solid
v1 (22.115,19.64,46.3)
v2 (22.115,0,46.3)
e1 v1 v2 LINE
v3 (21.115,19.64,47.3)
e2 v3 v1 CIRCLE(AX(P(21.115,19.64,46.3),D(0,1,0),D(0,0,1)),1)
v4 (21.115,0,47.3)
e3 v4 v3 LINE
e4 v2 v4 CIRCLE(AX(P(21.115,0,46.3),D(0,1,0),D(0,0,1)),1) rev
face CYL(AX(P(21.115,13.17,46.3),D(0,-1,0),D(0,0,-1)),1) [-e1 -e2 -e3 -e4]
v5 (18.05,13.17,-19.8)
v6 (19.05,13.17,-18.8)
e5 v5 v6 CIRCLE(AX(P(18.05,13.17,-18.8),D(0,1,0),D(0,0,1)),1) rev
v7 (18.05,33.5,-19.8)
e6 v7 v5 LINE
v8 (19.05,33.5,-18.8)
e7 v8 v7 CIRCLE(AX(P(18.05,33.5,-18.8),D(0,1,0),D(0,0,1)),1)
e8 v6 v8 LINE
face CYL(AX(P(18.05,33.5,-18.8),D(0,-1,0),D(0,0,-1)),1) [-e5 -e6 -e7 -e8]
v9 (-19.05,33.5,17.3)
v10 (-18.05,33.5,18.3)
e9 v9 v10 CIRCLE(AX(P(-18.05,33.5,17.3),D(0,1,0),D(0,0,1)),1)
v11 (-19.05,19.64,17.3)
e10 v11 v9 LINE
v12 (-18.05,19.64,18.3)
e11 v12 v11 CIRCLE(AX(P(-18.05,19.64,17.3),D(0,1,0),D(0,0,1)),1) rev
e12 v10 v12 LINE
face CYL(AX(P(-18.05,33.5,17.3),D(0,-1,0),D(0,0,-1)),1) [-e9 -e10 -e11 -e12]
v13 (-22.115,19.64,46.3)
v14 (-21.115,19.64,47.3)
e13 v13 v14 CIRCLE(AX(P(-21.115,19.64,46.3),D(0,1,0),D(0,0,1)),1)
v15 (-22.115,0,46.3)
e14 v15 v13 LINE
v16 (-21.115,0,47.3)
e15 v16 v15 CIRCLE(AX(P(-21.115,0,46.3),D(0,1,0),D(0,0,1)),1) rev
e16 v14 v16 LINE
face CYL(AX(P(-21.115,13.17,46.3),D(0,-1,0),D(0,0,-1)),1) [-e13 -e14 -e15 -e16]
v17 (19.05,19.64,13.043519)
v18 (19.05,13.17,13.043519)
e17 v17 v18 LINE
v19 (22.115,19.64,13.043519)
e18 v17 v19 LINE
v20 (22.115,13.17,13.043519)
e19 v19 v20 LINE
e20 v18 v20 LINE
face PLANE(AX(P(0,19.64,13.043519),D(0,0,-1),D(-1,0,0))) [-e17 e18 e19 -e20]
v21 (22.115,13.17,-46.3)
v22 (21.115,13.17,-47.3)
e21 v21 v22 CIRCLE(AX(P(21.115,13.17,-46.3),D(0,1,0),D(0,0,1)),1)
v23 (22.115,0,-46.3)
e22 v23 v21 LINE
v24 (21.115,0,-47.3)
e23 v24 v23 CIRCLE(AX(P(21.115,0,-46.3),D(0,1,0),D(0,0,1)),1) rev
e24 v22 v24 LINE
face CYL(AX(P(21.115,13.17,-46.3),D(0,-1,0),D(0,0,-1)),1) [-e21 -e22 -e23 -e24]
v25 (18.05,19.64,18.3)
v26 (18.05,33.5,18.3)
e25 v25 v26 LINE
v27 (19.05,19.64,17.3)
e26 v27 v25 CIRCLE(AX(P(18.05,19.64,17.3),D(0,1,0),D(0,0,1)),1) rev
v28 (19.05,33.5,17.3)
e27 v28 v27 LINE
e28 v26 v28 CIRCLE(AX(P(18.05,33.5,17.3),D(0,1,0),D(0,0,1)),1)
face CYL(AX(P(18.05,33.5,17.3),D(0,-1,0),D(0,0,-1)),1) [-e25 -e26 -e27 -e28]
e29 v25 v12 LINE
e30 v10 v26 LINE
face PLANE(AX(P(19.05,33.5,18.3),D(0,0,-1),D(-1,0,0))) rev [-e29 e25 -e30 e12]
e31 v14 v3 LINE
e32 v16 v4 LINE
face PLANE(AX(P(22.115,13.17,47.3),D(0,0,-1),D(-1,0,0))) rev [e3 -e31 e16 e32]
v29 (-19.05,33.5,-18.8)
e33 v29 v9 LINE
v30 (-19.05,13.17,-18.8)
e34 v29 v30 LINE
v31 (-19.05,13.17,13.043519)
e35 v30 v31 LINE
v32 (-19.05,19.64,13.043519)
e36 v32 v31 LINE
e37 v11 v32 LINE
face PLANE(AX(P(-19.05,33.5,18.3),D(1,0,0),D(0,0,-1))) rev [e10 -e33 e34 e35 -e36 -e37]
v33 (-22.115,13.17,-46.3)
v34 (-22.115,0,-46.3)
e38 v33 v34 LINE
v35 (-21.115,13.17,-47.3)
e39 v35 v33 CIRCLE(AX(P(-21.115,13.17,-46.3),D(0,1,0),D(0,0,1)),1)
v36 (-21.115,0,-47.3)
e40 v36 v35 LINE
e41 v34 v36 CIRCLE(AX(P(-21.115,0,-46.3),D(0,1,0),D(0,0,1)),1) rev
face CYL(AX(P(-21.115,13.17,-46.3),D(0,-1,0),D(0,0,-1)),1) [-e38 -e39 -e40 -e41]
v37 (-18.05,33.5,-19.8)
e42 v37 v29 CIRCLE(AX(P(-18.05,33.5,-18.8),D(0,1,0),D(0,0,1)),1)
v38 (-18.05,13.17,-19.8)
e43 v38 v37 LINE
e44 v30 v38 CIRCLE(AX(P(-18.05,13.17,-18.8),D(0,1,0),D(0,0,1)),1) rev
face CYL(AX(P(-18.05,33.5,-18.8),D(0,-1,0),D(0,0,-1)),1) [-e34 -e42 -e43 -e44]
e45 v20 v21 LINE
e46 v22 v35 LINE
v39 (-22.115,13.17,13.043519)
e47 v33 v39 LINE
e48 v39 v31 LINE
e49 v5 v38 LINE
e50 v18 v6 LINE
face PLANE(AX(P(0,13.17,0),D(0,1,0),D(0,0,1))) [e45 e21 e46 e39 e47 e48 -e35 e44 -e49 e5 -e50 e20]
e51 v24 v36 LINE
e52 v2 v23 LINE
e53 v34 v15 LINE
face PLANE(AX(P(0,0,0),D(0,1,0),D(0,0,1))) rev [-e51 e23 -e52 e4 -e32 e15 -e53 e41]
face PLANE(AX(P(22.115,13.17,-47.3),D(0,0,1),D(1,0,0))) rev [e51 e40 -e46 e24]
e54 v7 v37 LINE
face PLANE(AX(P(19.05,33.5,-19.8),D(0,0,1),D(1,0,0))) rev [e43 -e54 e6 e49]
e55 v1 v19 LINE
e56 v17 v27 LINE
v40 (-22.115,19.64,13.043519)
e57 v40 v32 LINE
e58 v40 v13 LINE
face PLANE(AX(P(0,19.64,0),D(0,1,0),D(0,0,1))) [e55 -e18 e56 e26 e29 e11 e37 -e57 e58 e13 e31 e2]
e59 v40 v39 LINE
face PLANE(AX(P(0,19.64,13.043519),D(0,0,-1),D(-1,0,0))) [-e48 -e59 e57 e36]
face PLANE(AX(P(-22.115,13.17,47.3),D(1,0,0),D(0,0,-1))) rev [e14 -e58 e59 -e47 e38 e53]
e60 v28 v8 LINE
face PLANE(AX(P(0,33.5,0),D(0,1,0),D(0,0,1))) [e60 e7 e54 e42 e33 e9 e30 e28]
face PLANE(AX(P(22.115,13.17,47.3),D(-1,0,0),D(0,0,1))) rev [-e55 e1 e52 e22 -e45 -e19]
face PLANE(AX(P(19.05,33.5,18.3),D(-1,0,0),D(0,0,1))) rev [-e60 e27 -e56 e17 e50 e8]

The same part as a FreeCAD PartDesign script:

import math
import FreeCAD as App
import Part
import Sketcher
from FreeCAD import Vector


def edges_at(feature, points):
    """Names of the edges that pass closest to the given points."""
    edges = feature.Shape.Edges
    near = lambda p: min(range(len(edges)), key=lambda i: edges[i].distToShape(Part.Vertex(*p))[0])
    return sorted({f"Edge{near(p) + 1}" for p in points})

doc = App.newDocument("Part")
body = doc.addObject("PartDesign::Body", "Body")

sketch1 = doc.addObject("Sketcher::SketchObject", "Sketch")
body.addObject(sketch1)
sketch1.AttachmentSupport = (doc.XZ_Plane, [""])
sketch1.MapMode = "FlatFace"
sketch1.addGeometry(Part.LineSegment(Vector(-22, -47, 0), Vector(-22, 47, 0)), False)
sketch1.addGeometry(Part.LineSegment(Vector(-22, 47, 0), Vector(22, 47, 0)), False)
sketch1.addGeometry(Part.LineSegment(Vector(22, 47, 0), Vector(22, -47, 0)), False)
sketch1.addGeometry(Part.LineSegment(Vector(22, -47, 0), Vector(-22, -47, 0)), False)
sketch1.addConstraint(Sketcher.Constraint("Coincident", 0, 2, 1, 1))
sketch1.addConstraint(Sketcher.Constraint("Coincident", 1, 2, 2, 1))
sketch1.addConstraint(Sketcher.Constraint("Coincident", 2, 2, 3, 1))
sketch1.addConstraint(Sketcher.Constraint("Coincident", 3, 2, 0, 1))
sketch1.addConstraint(Sketcher.Constraint("Vertical", 0))
sketch1.addConstraint(Sketcher.Constraint("Horizontal", 1))
sketch1.addConstraint(Sketcher.Constraint("Vertical", 2))
sketch1.addConstraint(Sketcher.Constraint("Horizontal", 3))
sketch1.addConstraint(Sketcher.Constraint("Symmetric", 0, 2, 2, 2, -1, 1))
sketch1.addConstraint(Sketcher.Constraint("DistanceY", 0, 1, 0, 2, 94.6))
sketch1.addConstraint(Sketcher.Constraint("DistanceX", 1, 1, 1, 2, 44.23))
pad1 = doc.addObject("PartDesign::Pad", "Pad")
body.addObject(pad1)
pad1.Profile = sketch1
pad1.Length = 13.17
pad1.Reversed = True

sketch2 = doc.addObject("Sketcher::SketchObject", "Sketch001")
body.addObject(sketch2)
sketch2.AttachmentSupport = (doc.XZ_Plane, [""])
sketch2.MapMode = "FlatFace"
sketch2.AttachmentOffset = App.Placement(Vector(0, 0, -13.17), App.Rotation())
sketch2.addGeometry(Part.LineSegment(Vector(-19, -20, 0), Vector(-19, 18, 0)), False)
sketch2.addGeometry(Part.LineSegment(Vector(-19, 18, 0), Vector(19, 18, 0)), False)
sketch2.addGeometry(Part.LineSegment(Vector(19, 18, 0), Vector(19, -20, 0)), False)
sketch2.addGeometry(Part.LineSegment(Vector(19, -20, 0), Vector(-19, -20, 0)), False)
sketch2.addConstraint(Sketcher.Constraint("Coincident", 0, 2, 1, 1))
sketch2.addConstraint(Sketcher.Constraint("Coincident", 1, 2, 2, 1))
sketch2.addConstraint(Sketcher.Constraint("Coincident", 2, 2, 3, 1))
sketch2.addConstraint(Sketcher.Constraint("Coincident", 3, 2, 0, 1))
sketch2.addConstraint(Sketcher.Constraint("Vertical", 0))
sketch2.addConstraint(Sketcher.Constraint("Horizontal", 1))
sketch2.addConstraint(Sketcher.Constraint("Vertical", 2))
sketch2.addConstraint(Sketcher.Constraint("Horizontal", 3))
sketch2.addConstraint(Sketcher.Constraint("Equal", 3, 0))
sketch2.addConstraint(Sketcher.Constraint("DistanceX", 1, 1, 1, 2, 38.1))
sketch2.addConstraint(Sketcher.Constraint("DistanceY", -1, 1, 0, 2, 18.3))
sketch2.addConstraint(Sketcher.Constraint("DistanceX", 0, 2, -1, 1, 19.05))
pad2 = doc.addObject("PartDesign::Pad", "Pad001")
body.addObject(pad2)
pad2.Profile = sketch2
pad2.Length = 20.33
pad2.Reversed = True
doc.recompute()

fillet = doc.addObject("PartDesign::Fillet", "Fillet")
body.addObject(fillet)
fillet.Base = (pad2, edges_at(pad2, [
    (-19.05, 23.335, -19.8),
    (-19.05, 23.335, 18.3),
    (19.05, 23.335, 18.3),
    (19.05, 23.335, -19.8),
    (-22.115, 6.585, -47.3),
    (22.115, 6.585, -47.3),
    (22.115, 6.585, 47.3),
    (-22.115, 6.585, 47.3),
]))
fillet.Radius = 1

sketch3 = doc.addObject("Sketcher::SketchObject", "Sketch002")
body.addObject(sketch3)
sketch3.AttachmentSupport = (doc.XZ_Plane, [""])
sketch3.MapMode = "FlatFace"
sketch3.AttachmentOffset = App.Placement(Vector(0, 0, -13.17), App.Rotation())
sketch3.addGeometry(Part.LineSegment(Vector(-19.1, 13, 0), Vector(-22.1, 13, 0)), False)
sketch3.addGeometry(Part.LineSegment(Vector(-22.1, 13, 0), Vector(-22.1, 46.3, 0)), False)
sketch3.addGeometry(Part.ArcOfCircle(Part.Circle(Vector(-21.1, 46.3, 0), Vector(0, 0, 1), 1), math.radians(135), math.radians(180)), False)
sketch3.addGeometry(Part.ArcOfCircle(Part.Circle(Vector(-21.1, 46.3, 0), Vector(0, 0, 1), 1), math.radians(90), math.radians(135)), False)
sketch3.addGeometry(Part.LineSegment(Vector(-21.1, 47.3, 0), Vector(21.1, 47.3, 0)), False)
sketch3.addGeometry(Part.ArcOfCircle(Part.Circle(Vector(21.1, 46.3, 0), Vector(0, 0, 1), 1), math.radians(45), math.radians(90)), False)
sketch3.addGeometry(Part.ArcOfCircle(Part.Circle(Vector(21.1, 46.3, 0), Vector(0, 0, 1), 1), math.radians(0), math.radians(45)), False)
sketch3.addGeometry(Part.LineSegment(Vector(22.1, 46.3, 0), Vector(22.1, 13, 0)), False)
sketch3.addGeometry(Part.LineSegment(Vector(22.1, 13, 0), Vector(19.1, 13, 0)), False)
sketch3.addGeometry(Part.LineSegment(Vector(19.1, 13, 0), Vector(19.1, 17.3, 0)), False)
sketch3.addGeometry(Part.ArcOfCircle(Part.Circle(Vector(18.1, 17.3, 0), Vector(0, 0, 1), 1), math.radians(0), math.radians(45)), False)
sketch3.addGeometry(Part.ArcOfCircle(Part.Circle(Vector(18.1, 17.3, 0), Vector(0, 0, 1), 1), math.radians(45), math.radians(90)), False)
sketch3.addGeometry(Part.LineSegment(Vector(18.1, 18.3, 0), Vector(-18.1, 18.3, 0)), False)
sketch3.addGeometry(Part.ArcOfCircle(Part.Circle(Vector(-18.1, 17.3, 0), Vector(0, 0, 1), 1), math.radians(90), math.radians(135)), False)
sketch3.addGeometry(Part.ArcOfCircle(Part.Circle(Vector(-18.1, 17.3, 0), Vector(0, 0, 1), 1), math.radians(135), math.radians(180)), False)
sketch3.addGeometry(Part.LineSegment(Vector(-19.1, 17.3, 0), Vector(-19.1, 13, 0)), False)
sketch3.addConstraint(Sketcher.Constraint("Coincident", 0, 2, 1, 1))
sketch3.addConstraint(Sketcher.Constraint("Tangent", 1, 2, 2, 2))
sketch3.addConstraint(Sketcher.Constraint("Tangent", 2, 1, 3, 2))
sketch3.addConstraint(Sketcher.Constraint("Tangent", 3, 1, 4, 1))
sketch3.addConstraint(Sketcher.Constraint("Tangent", 4, 2, 5, 2))
sketch3.addConstraint(Sketcher.Constraint("Tangent", 5, 1, 6, 2))
sketch3.addConstraint(Sketcher.Constraint("Tangent", 6, 1, 7, 1))
sketch3.addConstraint(Sketcher.Constraint("Coincident", 7, 2, 8, 1))
sketch3.addConstraint(Sketcher.Constraint("Coincident", 8, 2, 9, 1))
sketch3.addConstraint(Sketcher.Constraint("Tangent", 9, 2, 10, 1))
sketch3.addConstraint(Sketcher.Constraint("Tangent", 10, 2, 11, 1))
sketch3.addConstraint(Sketcher.Constraint("Tangent", 11, 2, 12, 1))
sketch3.addConstraint(Sketcher.Constraint("Tangent", 12, 2, 13, 1))
sketch3.addConstraint(Sketcher.Constraint("Tangent", 13, 2, 14, 1))
sketch3.addConstraint(Sketcher.Constraint("Tangent", 14, 2, 15, 1))
sketch3.addConstraint(Sketcher.Constraint("Coincident", 15, 2, 0, 1))
sketch3.addConstraint(Sketcher.Constraint("Horizontal", 0))
sketch3.addConstraint(Sketcher.Constraint("Vertical", 1))
sketch3.addConstraint(Sketcher.Constraint("Horizontal", 4))
sketch3.addConstraint(Sketcher.Constraint("Vertical", 7))
sketch3.addConstraint(Sketcher.Constraint("Horizontal", 8))
sketch3.addConstraint(Sketcher.Constraint("Vertical", 9))
sketch3.addConstraint(Sketcher.Constraint("Horizontal", 12))
sketch3.addConstraint(Sketcher.Constraint("Vertical", 15))
sketch3.addConstraint(Sketcher.Constraint("Equal", 2, 3))
sketch3.addConstraint(Sketcher.Constraint("Equal", 3, 5))
sketch3.addConstraint(Sketcher.Constraint("Equal", 5, 6))
sketch3.addConstraint(Sketcher.Constraint("Equal", 6, 10))
sketch3.addConstraint(Sketcher.Constraint("Equal", 10, 11))
sketch3.addConstraint(Sketcher.Constraint("Equal", 11, 13))
sketch3.addConstraint(Sketcher.Constraint("Equal", 13, 14))
sketch3.addConstraint(Sketcher.Constraint("Symmetric", 2, 1, 5, 1, -2))
sketch3.addConstraint(Sketcher.Constraint("Symmetric", 10, 2, 13, 2, -2))
sketch3.addConstraint(Sketcher.Constraint("Horizontal", 0, 2, 7, 2))
sketch3.addConstraint(Sketcher.Constraint("Radius", 2, 1.0))
sketch3.addConstraint(Sketcher.Constraint("DistanceX", 12, 2, 12, 1, 36.1))
sketch3.addConstraint(Sketcher.Constraint("DistanceY", 10, 3, 6, 3, 29.0))
sketch3.addConstraint(Sketcher.Constraint("DistanceX", 4, 1, 4, 2, 42.23))
sketch3.addConstraint(Sketcher.Constraint("DistanceY", -1, 1, 2, 3, 46.3))
sketch3.addConstraint(Sketcher.Constraint("DistanceY", 1, 1, 1, 2, 33.256481))
sketch3.addConstraint(Sketcher.Constraint("DistanceX", 2, 1, -1, 1, 21.822107))
sketch3.addConstraint(Sketcher.Constraint("DistanceX", -1, 1, 10, 2, 18.757107))
pad3 = doc.addObject("PartDesign::Pad", "Pad002")
body.addObject(pad3)
pad3.Profile = sketch3
pad3.Length = 6.47
pad3.Reversed = True

doc.recompute()
